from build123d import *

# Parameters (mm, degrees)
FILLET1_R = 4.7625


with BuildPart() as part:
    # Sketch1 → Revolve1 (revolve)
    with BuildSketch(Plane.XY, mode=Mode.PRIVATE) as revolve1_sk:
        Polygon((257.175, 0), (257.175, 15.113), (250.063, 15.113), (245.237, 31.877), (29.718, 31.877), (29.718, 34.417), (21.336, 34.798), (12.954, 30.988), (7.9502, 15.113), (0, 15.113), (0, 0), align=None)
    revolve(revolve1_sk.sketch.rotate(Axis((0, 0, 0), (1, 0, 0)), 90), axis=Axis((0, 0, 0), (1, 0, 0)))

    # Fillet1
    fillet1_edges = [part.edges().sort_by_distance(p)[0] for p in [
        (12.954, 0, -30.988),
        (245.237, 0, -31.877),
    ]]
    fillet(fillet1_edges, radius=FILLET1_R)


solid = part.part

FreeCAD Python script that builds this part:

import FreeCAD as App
import Part
import Sketcher

V = App.Vector
Q = App.Units.Quantity


def edges_at(feature, points):
    """Names of the edges that pass closest to the given points."""
    edges = feature.Shape.Edges
    near = lambda p: min(range(len(edges)), key=lambda i: edges[i].distToShape(Part.Vertex(*p))[0])
    return sorted({f"Edge{near(p) + 1}" for p in points})


def add_polygon(sketch, points):
    """Adds a closed chain of lines whose ends are joined by coincident constraints."""
    first, n = sketch.GeometryCount, len(points)
    for a, b in zip(points, points[1:] + points[:1]):
        sketch.addGeometry(Part.LineSegment(App.Vector(*a, 0), App.Vector(*b, 0)), False)
    for i in range(n):
        sketch.addConstraint(Sketcher.Constraint("Coincident", first + i, 2, first + (i + 1) % n, 1))

doc = App.newDocument("Part")
body = doc.addObject("PartDesign::Body", "Body")

sketch1 = doc.addObject("Sketcher::SketchObject", "Sketch")
body.addObject(sketch1)
sketch1.AttachmentSupport = (doc.XY_Plane, [""])
sketch1.MapMode = "FlatFace"
add_polygon(sketch1, [(257.2, 0), (257.2, 15.1), (250.1, 15.1), (245.2, 31.9), (29.7, 31.9), (29.7, 34.4), (21.3, 34.8), (13, 31), (8, 15.1), (0, 15.1), (0, 0)])
sketch1.addConstraint([
    Sketcher.Constraint("Vertical", 0),
    Sketcher.Constraint("Horizontal", 1),
    Sketcher.Constraint("Horizontal", 3),
    Sketcher.Constraint("Vertical", 4),
    Sketcher.Constraint("Horizontal", 8),
    Sketcher.Constraint("Vertical", 9),
    Sketcher.Constraint("Horizontal", 10),
    Sketcher.Constraint("Coincident", 9, 2, -1, 1),
    Sketcher.Constraint("Horizontal", 1, 2, 7, 2),
    Sketcher.Constraint("DistanceY", 4, 1, 4, 2, Q("0.1 in")),
    Sketcher.Constraint("DistanceX", 1, 2, 1, 1, Q("0.28 in")),
    Sketcher.Constraint("DistanceX", 3, 2, 3, 1, Q("8.485 in")),
    Sketcher.Constraint("DistanceX", 8, 2, 8, 1, Q("0.313 in")),
    Sketcher.Constraint("DistanceX", 10, 1, 10, 2, Q("10.125 in")),
    Sketcher.Constraint("DistanceY", 0, 1, 0, 2, Q("0.595 in")),
    Sketcher.Constraint("DistanceX", -1, 1, 3, 2, Q("1.17 in")),
    Sketcher.Constraint("DistanceX", -1, 1, 5, 2, Q("0.84 in")),
    Sketcher.Constraint("DistanceY", -1, 1, 5, 2, Q("1.37 in")),
    Sketcher.Constraint("DistanceX", -1, 1, 6, 2, Q("0.51 in")),
    Sketcher.Constraint("DistanceY", -1, 1, 6, 2, Q("1.22 in")),
    Sketcher.Constraint("Angle", 2, Q("106.059987 deg")),
])
revolution = doc.addObject("PartDesign::Revolution", "Revolution")
body.addObject(revolution)
revolution.Profile = sketch1
revolution.ReferenceAxis = (sketch1, ["H_Axis"])
revolution.Angle = 360
doc.recompute()

fillet = doc.addObject("PartDesign::Fillet", "Fillet")
body.addObject(fillet)
fillet.Base = (revolution, edges_at(revolution, [(12.954, 0, -30.988), (245.237, 0, -31.877)]))
fillet.Radius = Q("0.1875 in")

doc.recompute()
